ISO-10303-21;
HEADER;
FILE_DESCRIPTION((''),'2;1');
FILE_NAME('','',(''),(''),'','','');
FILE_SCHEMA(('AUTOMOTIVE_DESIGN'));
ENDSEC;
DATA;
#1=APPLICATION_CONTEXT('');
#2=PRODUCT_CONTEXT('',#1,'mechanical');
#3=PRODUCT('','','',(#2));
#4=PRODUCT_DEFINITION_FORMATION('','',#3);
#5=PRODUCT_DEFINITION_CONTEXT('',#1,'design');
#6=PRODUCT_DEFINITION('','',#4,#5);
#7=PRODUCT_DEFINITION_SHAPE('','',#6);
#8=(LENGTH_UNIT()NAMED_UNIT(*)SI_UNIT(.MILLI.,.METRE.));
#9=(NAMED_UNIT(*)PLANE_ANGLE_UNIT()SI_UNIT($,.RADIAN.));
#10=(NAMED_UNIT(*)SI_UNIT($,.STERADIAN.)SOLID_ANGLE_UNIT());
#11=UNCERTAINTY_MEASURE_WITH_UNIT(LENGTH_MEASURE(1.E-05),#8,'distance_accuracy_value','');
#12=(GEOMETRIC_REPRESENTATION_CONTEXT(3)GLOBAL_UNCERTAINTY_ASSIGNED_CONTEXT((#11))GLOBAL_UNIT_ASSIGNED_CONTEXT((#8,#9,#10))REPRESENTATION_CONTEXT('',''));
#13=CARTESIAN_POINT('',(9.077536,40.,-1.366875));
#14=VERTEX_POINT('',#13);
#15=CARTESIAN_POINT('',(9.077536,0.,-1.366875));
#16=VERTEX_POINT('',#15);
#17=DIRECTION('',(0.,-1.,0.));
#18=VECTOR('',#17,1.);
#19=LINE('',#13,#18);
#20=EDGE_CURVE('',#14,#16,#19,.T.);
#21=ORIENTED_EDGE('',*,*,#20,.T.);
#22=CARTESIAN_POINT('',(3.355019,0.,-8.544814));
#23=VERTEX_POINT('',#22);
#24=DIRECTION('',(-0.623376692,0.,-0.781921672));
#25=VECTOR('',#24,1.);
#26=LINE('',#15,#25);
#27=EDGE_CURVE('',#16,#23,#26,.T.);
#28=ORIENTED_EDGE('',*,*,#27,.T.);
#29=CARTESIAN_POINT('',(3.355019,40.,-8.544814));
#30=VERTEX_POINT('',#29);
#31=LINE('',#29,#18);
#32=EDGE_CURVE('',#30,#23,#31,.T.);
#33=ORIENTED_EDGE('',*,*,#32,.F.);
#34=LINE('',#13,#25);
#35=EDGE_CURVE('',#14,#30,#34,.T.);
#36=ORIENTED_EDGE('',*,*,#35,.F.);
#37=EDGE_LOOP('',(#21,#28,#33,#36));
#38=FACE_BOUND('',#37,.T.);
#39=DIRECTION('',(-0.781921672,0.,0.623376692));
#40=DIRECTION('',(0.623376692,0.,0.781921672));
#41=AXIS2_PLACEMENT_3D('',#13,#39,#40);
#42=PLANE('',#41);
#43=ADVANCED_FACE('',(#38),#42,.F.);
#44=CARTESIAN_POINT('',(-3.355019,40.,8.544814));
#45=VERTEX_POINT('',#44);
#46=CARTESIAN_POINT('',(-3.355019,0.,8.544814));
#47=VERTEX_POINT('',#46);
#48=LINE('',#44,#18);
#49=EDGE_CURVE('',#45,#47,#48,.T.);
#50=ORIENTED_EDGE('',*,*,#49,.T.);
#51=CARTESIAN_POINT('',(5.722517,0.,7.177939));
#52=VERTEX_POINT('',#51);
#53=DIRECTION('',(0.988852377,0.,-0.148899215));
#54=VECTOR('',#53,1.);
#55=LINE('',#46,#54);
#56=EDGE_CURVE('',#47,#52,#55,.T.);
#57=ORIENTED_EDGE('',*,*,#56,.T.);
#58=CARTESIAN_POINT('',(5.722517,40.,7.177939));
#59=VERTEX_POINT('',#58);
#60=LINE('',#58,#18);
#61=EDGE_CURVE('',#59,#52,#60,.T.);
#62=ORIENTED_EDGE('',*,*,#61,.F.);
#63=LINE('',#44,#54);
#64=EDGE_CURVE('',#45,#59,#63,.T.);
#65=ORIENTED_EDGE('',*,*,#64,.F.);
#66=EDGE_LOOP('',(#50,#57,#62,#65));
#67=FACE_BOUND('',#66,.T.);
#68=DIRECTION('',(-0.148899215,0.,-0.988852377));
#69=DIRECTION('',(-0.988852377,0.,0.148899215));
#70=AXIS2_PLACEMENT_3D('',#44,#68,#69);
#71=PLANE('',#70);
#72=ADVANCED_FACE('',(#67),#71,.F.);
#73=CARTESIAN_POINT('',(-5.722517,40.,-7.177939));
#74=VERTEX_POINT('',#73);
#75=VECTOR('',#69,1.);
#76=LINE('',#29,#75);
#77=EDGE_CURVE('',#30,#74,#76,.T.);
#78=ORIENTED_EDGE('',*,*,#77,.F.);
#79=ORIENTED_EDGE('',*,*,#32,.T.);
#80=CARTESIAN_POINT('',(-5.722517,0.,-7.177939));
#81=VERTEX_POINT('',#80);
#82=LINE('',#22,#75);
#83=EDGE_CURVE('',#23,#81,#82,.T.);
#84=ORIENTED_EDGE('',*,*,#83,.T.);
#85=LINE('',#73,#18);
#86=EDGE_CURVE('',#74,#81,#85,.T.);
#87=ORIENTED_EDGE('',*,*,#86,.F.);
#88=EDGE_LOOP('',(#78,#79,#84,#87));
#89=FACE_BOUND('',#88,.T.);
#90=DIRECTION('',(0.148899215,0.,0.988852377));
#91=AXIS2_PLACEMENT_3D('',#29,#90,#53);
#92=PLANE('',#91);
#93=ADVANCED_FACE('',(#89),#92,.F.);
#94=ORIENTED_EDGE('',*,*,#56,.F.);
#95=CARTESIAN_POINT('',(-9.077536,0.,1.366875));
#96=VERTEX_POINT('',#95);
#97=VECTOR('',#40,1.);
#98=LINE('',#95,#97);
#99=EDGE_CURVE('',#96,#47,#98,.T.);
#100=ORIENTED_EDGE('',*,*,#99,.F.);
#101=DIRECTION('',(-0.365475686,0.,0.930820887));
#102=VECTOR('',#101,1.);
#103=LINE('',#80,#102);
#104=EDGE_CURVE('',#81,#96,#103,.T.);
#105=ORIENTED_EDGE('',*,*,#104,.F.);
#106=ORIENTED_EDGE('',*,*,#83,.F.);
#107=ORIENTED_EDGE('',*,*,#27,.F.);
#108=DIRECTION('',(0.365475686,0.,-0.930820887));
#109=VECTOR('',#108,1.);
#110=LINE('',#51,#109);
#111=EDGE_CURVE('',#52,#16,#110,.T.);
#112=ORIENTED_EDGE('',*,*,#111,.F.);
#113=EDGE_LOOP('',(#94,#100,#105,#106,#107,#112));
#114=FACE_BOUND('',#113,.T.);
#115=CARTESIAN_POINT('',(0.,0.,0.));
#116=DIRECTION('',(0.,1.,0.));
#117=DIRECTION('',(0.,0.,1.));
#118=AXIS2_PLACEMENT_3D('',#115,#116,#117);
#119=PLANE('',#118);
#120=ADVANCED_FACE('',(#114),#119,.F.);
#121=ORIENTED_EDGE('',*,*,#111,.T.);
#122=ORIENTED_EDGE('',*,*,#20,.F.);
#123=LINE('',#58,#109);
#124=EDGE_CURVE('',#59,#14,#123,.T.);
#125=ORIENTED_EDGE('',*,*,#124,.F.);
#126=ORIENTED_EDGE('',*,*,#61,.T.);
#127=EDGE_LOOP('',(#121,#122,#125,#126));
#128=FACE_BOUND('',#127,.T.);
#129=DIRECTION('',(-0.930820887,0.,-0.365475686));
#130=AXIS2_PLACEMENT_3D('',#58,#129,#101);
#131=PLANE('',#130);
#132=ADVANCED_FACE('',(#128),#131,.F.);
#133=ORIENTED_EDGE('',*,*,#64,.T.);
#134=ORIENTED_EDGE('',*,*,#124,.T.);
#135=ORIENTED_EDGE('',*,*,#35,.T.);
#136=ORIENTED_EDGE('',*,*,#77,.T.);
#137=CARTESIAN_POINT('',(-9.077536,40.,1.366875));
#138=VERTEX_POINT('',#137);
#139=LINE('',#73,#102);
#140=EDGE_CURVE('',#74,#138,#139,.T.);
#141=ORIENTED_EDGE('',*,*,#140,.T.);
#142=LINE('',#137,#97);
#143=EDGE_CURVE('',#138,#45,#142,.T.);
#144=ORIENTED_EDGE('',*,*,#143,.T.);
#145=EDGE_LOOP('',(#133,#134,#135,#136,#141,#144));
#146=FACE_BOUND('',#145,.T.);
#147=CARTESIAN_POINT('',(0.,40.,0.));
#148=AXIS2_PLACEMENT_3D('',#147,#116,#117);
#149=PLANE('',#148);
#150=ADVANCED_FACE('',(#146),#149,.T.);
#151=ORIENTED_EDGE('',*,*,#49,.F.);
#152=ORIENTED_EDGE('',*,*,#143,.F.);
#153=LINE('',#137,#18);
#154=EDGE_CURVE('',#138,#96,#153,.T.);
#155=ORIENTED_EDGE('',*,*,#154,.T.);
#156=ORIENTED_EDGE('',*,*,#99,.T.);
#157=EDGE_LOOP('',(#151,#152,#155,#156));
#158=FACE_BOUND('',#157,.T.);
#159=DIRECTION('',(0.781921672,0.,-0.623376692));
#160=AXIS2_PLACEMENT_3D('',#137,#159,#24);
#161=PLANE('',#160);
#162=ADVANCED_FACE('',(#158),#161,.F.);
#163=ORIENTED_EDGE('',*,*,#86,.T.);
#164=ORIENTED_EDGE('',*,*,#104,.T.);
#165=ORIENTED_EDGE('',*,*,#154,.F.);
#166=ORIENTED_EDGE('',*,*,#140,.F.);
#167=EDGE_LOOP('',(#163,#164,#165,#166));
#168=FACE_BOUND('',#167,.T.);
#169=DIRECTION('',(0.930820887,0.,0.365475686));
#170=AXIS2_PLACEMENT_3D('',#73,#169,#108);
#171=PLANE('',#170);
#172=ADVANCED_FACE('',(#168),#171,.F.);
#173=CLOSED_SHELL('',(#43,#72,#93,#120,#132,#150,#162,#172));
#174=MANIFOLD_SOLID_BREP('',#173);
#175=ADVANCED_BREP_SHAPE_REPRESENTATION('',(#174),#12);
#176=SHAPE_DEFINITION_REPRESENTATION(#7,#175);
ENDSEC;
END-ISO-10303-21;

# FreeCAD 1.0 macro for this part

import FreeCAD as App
import Part
import Sketcher
Q = App.Units.Quantity


def add_polygon(sketch, points):
    """Adds a closed chain of lines whose ends are joined by coincident constraints."""
    first, n = sketch.GeometryCount, len(points)
    for a, b in zip(points, points[1:] + points[:1]):
        sketch.addGeometry(Part.LineSegment(App.Vector(*a, 0), App.Vector(*b, 0)), False)
    for i in range(n):
        sketch.addConstraint(Sketcher.Constraint("Coincident", first + i, 2, first + (i + 1) % n, 1))

doc = App.newDocument("Part")
body = doc.addObject("PartDesign::Body", "Body")

# Sketch on XZ plane
sketch1 = body.newObject("Sketcher::SketchObject", "Sketch")
sketch1.AttachmentSupport = (doc.getObject("XZ_Plane"), [""])
sketch1.MapMode = "FlatFace"
add_polygon(sketch1, [(3.355019, -8.544814), (-5.722517, -7.177939), (-9.077536, 1.366875), (-3.355019, 8.544814), (5.722517, 7.177939), (9.077536, -1.366875)])  # lines 0-5
sketch1.addConstraint(Sketcher.Constraint("Symmetric", 0, 2, 3, 2, -1, 1))
sketch1.addConstraint(Sketcher.Constraint("Symmetric", 1, 2, 4, 2, -1, 1))
sketch1.addConstraint(Sketcher.Constraint("Symmetric", 2, 2, 5, 2, -1, 1))
sketch1.addConstraint(Sketcher.Constraint("Equal", 0, 1))
sketch1.addConstraint(Sketcher.Constraint("Equal", 1, 2))
sketch1.addConstraint(Sketcher.Constraint("Distance", 0, Q("9.179869 mm")))
sketch1.addConstraint(Sketcher.Constraint("DistanceY", 0, 2, -1, 1, Q("7.177939 mm")))
sketch1.addConstraint(Sketcher.Constraint("DistanceX", 2, 2, -1, 1, Q("3.355019 mm")))
sketch1.addConstraint(Sketcher.Constraint("DistanceX", 1, 2, 0, 2, Q("3.355019 mm")))
pad1 = body.newObject("PartDesign::Pad", "Pad")
pad1.Profile = sketch1
pad1.Length = 40
pad1.Reversed = True

doc.recompute()
